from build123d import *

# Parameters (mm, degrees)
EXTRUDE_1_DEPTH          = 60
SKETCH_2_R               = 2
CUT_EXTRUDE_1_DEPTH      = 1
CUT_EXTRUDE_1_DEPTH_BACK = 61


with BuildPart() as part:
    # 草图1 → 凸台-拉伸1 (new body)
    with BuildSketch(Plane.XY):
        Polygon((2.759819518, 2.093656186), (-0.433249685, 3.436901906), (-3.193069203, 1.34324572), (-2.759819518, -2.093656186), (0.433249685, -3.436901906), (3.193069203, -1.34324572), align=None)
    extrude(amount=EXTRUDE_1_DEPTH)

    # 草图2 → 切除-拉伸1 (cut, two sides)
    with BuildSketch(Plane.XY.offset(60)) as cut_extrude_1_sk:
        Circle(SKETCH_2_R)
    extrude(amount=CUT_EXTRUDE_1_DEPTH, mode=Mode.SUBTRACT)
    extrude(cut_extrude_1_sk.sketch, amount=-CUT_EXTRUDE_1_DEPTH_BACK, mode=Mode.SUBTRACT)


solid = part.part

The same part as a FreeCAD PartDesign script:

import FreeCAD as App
import Part
import Sketcher

V = App.Vector


def add_polygon(sketch, points):
    """Adds a closed chain of lines whose ends are joined by coincident constraints."""
    first, n = sketch.GeometryCount, len(points)
    for a, b in zip(points, points[1:] + points[:1]):
        sketch.addGeometry(Part.LineSegment(App.Vector(*a, 0), App.Vector(*b, 0)), False)
    for i in range(n):
        sketch.addConstraint(Sketcher.Constraint("Coincident", first + i, 2, first + (i + 1) % n, 1))

doc = App.newDocument("Part")
body = doc.addObject("PartDesign::Body", "Body")

sketch1 = body.newObject("Sketcher::SketchObject", "Sketch")
sketch1.AttachmentSupport = (doc.getObject("XY_Plane"), [""])
sketch1.MapMode = "FlatFace"
add_polygon(sketch1, [(2.8, 2.1), (-0.4, 3.4), (-3.2, 1.3), (-2.8, -2.1), (0.4, -3.4), (3.2, -1.3)])
sketch1.addConstraint([
    Sketcher.Constraint("Symmetric", 0, 2, 3, 2, -1, 1),
    Sketcher.Constraint("Symmetric", 1, 2, 4, 2, -1, 1),
    Sketcher.Constraint("Symmetric", 2, 2, 5, 2, -1, 1),
    Sketcher.Constraint("Equal", 0, 1),
    Sketcher.Constraint("Equal", 1, 2),
    Sketcher.Constraint("Distance", 0, 3.464102),
    Sketcher.Constraint("DistanceY", -1, 1, 0, 2, 3.436902),
    Sketcher.Constraint("DistanceY", 2, 2, 1, 2, 3.436902),
    Sketcher.Constraint("DistanceX", 0, 2, 3, 2, 0.866499),
])
pad1 = body.newObject("PartDesign::Pad", "Pad")
pad1.Profile = sketch1
pad1.Length = 60

sketch2 = body.newObject("Sketcher::SketchObject", "Sketch001")
sketch2.AttachmentSupport = (doc.getObject("XY_Plane"), [""])
sketch2.MapMode = "FlatFace"
sketch2.AttachmentOffset = App.Placement(V(0, 0, 60), App.Rotation())
sketch2.addGeometry(Part.Circle(V(0, 0, 0), V(0, 0, 1), 2), False)
sketch2.addConstraint([
    Sketcher.Constraint("Coincident", 0, 3, -1, 1),
    Sketcher.Constraint("Diameter", 0, 4.0),
])
pocket1 = body.newObject("PartDesign::Pocket", "Pocket")
pocket1.Profile = sketch2
pocket1.Type = "ThroughAll"
pocket1.Midplane = True

doc.recompute()
